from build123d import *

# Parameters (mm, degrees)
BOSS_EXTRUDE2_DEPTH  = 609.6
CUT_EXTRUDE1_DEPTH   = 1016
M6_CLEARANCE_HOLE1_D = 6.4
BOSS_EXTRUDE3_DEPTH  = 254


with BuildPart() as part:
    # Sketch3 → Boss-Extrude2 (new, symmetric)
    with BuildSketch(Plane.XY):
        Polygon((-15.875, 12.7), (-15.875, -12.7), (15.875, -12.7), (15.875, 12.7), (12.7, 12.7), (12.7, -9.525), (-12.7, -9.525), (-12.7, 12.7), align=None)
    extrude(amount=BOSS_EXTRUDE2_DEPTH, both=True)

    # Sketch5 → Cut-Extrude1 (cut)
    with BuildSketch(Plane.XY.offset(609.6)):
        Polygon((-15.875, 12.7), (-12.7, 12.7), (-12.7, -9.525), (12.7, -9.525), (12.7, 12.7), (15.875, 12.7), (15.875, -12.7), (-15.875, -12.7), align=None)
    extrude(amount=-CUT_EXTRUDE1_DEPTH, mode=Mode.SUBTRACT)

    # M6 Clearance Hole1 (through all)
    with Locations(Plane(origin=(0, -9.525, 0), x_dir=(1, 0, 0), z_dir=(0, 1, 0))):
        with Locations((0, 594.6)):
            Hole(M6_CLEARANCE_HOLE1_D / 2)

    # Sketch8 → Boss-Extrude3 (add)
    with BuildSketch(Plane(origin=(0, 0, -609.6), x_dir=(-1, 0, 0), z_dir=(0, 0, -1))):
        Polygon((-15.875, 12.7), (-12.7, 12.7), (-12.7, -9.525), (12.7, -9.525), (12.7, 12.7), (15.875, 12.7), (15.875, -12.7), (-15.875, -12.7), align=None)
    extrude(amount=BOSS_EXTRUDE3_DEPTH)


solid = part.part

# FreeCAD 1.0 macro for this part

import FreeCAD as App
import Part
import Sketcher
Q = App.Units.Quantity

doc = App.newDocument("Part")
body = doc.addObject("PartDesign::Body", "Body")

# Sketch on XY plane
sketch1 = body.newObject("Sketcher::SketchObject", "Sketch")
sketch1.AttachmentSupport = (doc.getObject("XY_Plane"), [""])
sketch1.MapMode = "FlatFace"
sketch1.addGeometry(Part.LineSegment(App.Vector(-15.9, 12.7, 0), App.Vector(-15.9, -12.7, 0)), False)
sketch1.addGeometry(Part.LineSegment(App.Vector(-15.9, -12.7, 0), App.Vector(15.9, -12.7, 0)), False)
sketch1.addGeometry(Part.LineSegment(App.Vector(15.9, -12.7, 0), App.Vector(15.9, 12.7, 0)), False)
sketch1.addGeometry(Part.LineSegment(App.Vector(15.9, 12.7, 0), App.Vector(12.7, 12.7, 0)), False)
sketch1.addGeometry(Part.LineSegment(App.Vector(12.7, 12.7, 0), App.Vector(12.7, -9.5, 0)), False)
sketch1.addGeometry(Part.LineSegment(App.Vector(12.7, -9.5, 0), App.Vector(-12.7, -9.5, 0)), False)
sketch1.addGeometry(Part.LineSegment(App.Vector(-12.7, -9.5, 0), App.Vector(-12.7, 12.7, 0)), False)
sketch1.addGeometry(Part.LineSegment(App.Vector(-12.7, 12.7, 0), App.Vector(-15.9, 12.7, 0)), False)
sketch1.addConstraint(Sketcher.Constraint("Coincident", 0, 2, 1, 1))
sketch1.addConstraint(Sketcher.Constraint("Coincident", 1, 2, 2, 1))
sketch1.addConstraint(Sketcher.Constraint("Coincident", 2, 2, 3, 1))
sketch1.addConstraint(Sketcher.Constraint("Coincident", 3, 2, 4, 1))
sketch1.addConstraint(Sketcher.Constraint("Coincident", 4, 2, 5, 1))
sketch1.addConstraint(Sketcher.Constraint("Coincident", 5, 2, 6, 1))
sketch1.addConstraint(Sketcher.Constraint("Coincident", 6, 2, 7, 1))
sketch1.addConstraint(Sketcher.Constraint("Coincident", 7, 2, 0, 1))
sketch1.addConstraint(Sketcher.Constraint("Vertical", 0))
sketch1.addConstraint(Sketcher.Constraint("Horizontal", 1))
sketch1.addConstraint(Sketcher.Constraint("Vertical", 2))
sketch1.addConstraint(Sketcher.Constraint("Horizontal", 3))
sketch1.addConstraint(Sketcher.Constraint("Vertical", 4))
sketch1.addConstraint(Sketcher.Constraint("Horizontal", 5))
sketch1.addConstraint(Sketcher.Constraint("Vertical", 6))
sketch1.addConstraint(Sketcher.Constraint("Horizontal", 7))
sketch1.addConstraint(Sketcher.Constraint("Symmetric", 0, 2, 2, 2, -1, 1))
sketch1.addConstraint(Sketcher.Constraint("Symmetric", 3, 2, 6, 2, -2))
sketch1.addConstraint(Sketcher.Constraint("Equal", 5, 0))
sketch1.addConstraint(Sketcher.Constraint("DistanceX", 5, 2, 5, 1, Q("1 in")))
sketch1.addConstraint(Sketcher.Constraint("DistanceX", 1, 1, 1, 2, Q("1.25 in")))
sketch1.addConstraint(Sketcher.Constraint("DistanceY", 4, 2, 4, 1, Q("0.875 in")))
pad1 = body.newObject("PartDesign::Pad", "Pad")
pad1.Profile = sketch1
pad1.Length = Q("48 in")
pad1.Midplane = True

# Sketch on XY plane
sketch2 = body.newObject("Sketcher::SketchObject", "Sketch001")
sketch2.AttachmentSupport = (doc.getObject("XY_Plane"), [""])
sketch2.MapMode = "FlatFace"
sketch2.AttachmentOffset = App.Placement(App.Vector(0, 0, 24 * 25.4), App.Rotation())
sketch2.addGeometry(Part.LineSegment(App.Vector(-12.7, 12.7, 0), App.Vector(-15.9, 12.7, 0)), False)
sketch2.addGeometry(Part.LineSegment(App.Vector(-15.9, 12.7, 0), App.Vector(-15.9, -12.7, 0)), False)
sketch2.addGeometry(Part.LineSegment(App.Vector(-15.9, -12.7, 0), App.Vector(15.9, -12.7, 0)), False)
sketch2.addGeometry(Part.LineSegment(App.Vector(15.9, -12.7, 0), App.Vector(15.9, 12.7, 0)), False)
sketch2.addGeometry(Part.LineSegment(App.Vector(15.9, 12.7, 0), App.Vector(12.7, 12.7, 0)), False)
sketch2.addGeometry(Part.LineSegment(App.Vector(12.7, 12.7, 0), App.Vector(12.7, -9.5, 0)), False)
sketch2.addGeometry(Part.LineSegment(App.Vector(12.7, -9.5, 0), App.Vector(-12.7, -9.5, 0)), False)
sketch2.addGeometry(Part.LineSegment(App.Vector(-12.7, -9.5, 0), App.Vector(-12.7, 12.7, 0)), False)
sketch2.addConstraint(Sketcher.Constraint("Coincident", 0, 2, 1, 1))
sketch2.addConstraint(Sketcher.Constraint("Coincident", 1, 2, 2, 1))
sketch2.addConstraint(Sketcher.Constraint("Coincident", 2, 2, 3, 1))
sketch2.addConstraint(Sketcher.Constraint("Coincident", 3, 2, 4, 1))
sketch2.addConstraint(Sketcher.Constraint("Coincident", 4, 2, 5, 1))
sketch2.addConstraint(Sketcher.Constraint("Coincident", 5, 2, 6, 1))
sketch2.addConstraint(Sketcher.Constraint("Coincident", 6, 2, 7, 1))
sketch2.addConstraint(Sketcher.Constraint("Coincident", 7, 2, 0, 1))
sketch2.addConstraint(Sketcher.Constraint("Horizontal", 0))
sketch2.addConstraint(Sketcher.Constraint("Vertical", 1))
sketch2.addConstraint(Sketcher.Constraint("Horizontal", 2))
sketch2.addConstraint(Sketcher.Constraint("Vertical", 3))
sketch2.addConstraint(Sketcher.Constraint("Horizontal", 4))
sketch2.addConstraint(Sketcher.Constraint("Vertical", 5))
sketch2.addConstraint(Sketcher.Constraint("Horizontal", 6))
sketch2.addConstraint(Sketcher.Constraint("Vertical", 7))
sketch2.addConstraint(Sketcher.Constraint("Symmetric", 0, 2, 2, 2, -1, 1))
sketch2.addConstraint(Sketcher.Constraint("Symmetric", 4, 2, 7, 2, -2))
sketch2.addConstraint(Sketcher.Constraint("Equal", 6, 1))
sketch2.addConstraint(Sketcher.Constraint("DistanceX", 6, 2, 6, 1, Q("1 in")))
sketch2.addConstraint(Sketcher.Constraint("DistanceX", 2, 1, 2, 2, Q("1.25 in")))
sketch2.addConstraint(Sketcher.Constraint("DistanceY", 5, 2, 5, 1, Q("0.875 in")))
pocket1 = body.newObject("PartDesign::Pocket", "Pocket")
pocket1.Profile = sketch2
pocket1.Length = Q("40 in")

# Sketch on XZ plane
sketch3 = body.newObject("Sketcher::SketchObject", "Sketch002")
sketch3.AttachmentSupport = (doc.getObject("XZ_Plane"), [""])
sketch3.MapMode = "FlatFace"
sketch3.AttachmentOffset = App.Placement(App.Vector(0, 0, 0.375 * 25.4), App.Rotation())
sketch3.addGeometry(Part.Circle(App.Vector(0, -594.6, 0), App.Vector(0, 0, 1), 3.2), False)
sketch3.addConstraint(Sketcher.Constraint("PointOnObject", 0, 3, -2))
sketch3.addConstraint(Sketcher.Constraint("Diameter", 0, Q("6.4 mm")))
sketch3.addConstraint(Sketcher.Constraint("DistanceY", 0, 3, -1, 1, Q("594.6 mm")))
doc.recompute()
hole = body.newObject("PartDesign::Hole", "Hole")
hole.Profile = sketch3
hole.ThreadType = "None"
hole.Diameter = 6.4
hole.DepthType = "ThroughAll"
hole.Reversed = True

# Sketch on XY plane
sketch4 = body.newObject("Sketcher::SketchObject", "Sketch003")
sketch4.AttachmentSupport = (doc.getObject("XY_Plane"), [""])
sketch4.MapMode = "FlatFace"
sketch4.AttachmentOffset = App.Placement(App.Vector(0, 0, -24 * 25.4), App.Rotation())
sketch4.addGeometry(Part.LineSegment(App.Vector(12.7, 12.7, 0), App.Vector(15.9, 12.7, 0)), False)
sketch4.addGeometry(Part.LineSegment(App.Vector(15.9, 12.7, 0), App.Vector(15.9, -12.7, 0)), False)
sketch4.addGeometry(Part.LineSegment(App.Vector(15.9, -12.7, 0), App.Vector(-15.9, -12.7, 0)), False)
sketch4.addGeometry(Part.LineSegment(App.Vector(-15.9, -12.7, 0), App.Vector(-15.9, 12.7, 0)), False)
sketch4.addGeometry(Part.LineSegment(App.Vector(-15.9, 12.7, 0), App.Vector(-12.7, 12.7, 0)), False)
sketch4.addGeometry(Part.LineSegment(App.Vector(-12.7, 12.7, 0), App.Vector(-12.7, -9.5, 0)), False)
sketch4.addGeometry(Part.LineSegment(App.Vector(-12.7, -9.5, 0), App.Vector(12.7, -9.5, 0)), False)
sketch4.addGeometry(Part.LineSegment(App.Vector(12.7, -9.5, 0), App.Vector(12.7, 12.7, 0)), False)
sketch4.addConstraint(Sketcher.Constraint("Coincident", 0, 2, 1, 1))
sketch4.addConstraint(Sketcher.Constraint("Coincident", 1, 2, 2, 1))
sketch4.addConstraint(Sketcher.Constraint("Coincident", 2, 2, 3, 1))
sketch4.addConstraint(Sketcher.Constraint("Coincident", 3, 2, 4, 1))
sketch4.addConstraint(Sketcher.Constraint("Coincident", 4, 2, 5, 1))
sketch4.addConstraint(Sketcher.Constraint("Coincident", 5, 2, 6, 1))
sketch4.addConstraint(Sketcher.Constraint("Coincident", 6, 2, 7, 1))
sketch4.addConstraint(Sketcher.Constraint("Coincident", 7, 2, 0, 1))
sketch4.addConstraint(Sketcher.Constraint("Horizontal", 0))
sketch4.addConstraint(Sketcher.Constraint("Vertical", 1))
sketch4.addConstraint(Sketcher.Constraint("Horizontal", 2))
sketch4.addConstraint(Sketcher.Constraint("Vertical", 3))
sketch4.addConstraint(Sketcher.Constraint("Horizontal", 4))
sketch4.addConstraint(Sketcher.Constraint("Vertical", 5))
sketch4.addConstraint(Sketcher.Constraint("Horizontal", 6))
sketch4.addConstraint(Sketcher.Constraint("Vertical", 7))
sketch4.addConstraint(Sketcher.Constraint("Symmetric", 0, 2, 2, 2, -1, 1))
sketch4.addConstraint(Sketcher.Constraint("Symmetric", 4, 2, 7, 2, -2))
sketch4.addConstraint(Sketcher.Constraint("Equal", 6, 1))
sketch4.addConstraint(Sketcher.Constraint("DistanceX", 6, 1, 6, 2, Q("1 in")))
sketch4.addConstraint(Sketcher.Constraint("DistanceX", 2, 2, 2, 1, Q("1.25 in")))
sketch4.addConstraint(Sketcher.Constraint("DistanceY", 5, 2, 5, 1, Q("0.875 in")))
pad2 = body.newObject("PartDesign::Pad", "Pad001")
pad2.Profile = sketch4
pad2.Length = Q("10 in")
pad2.Reversed = True

doc.recompute()
